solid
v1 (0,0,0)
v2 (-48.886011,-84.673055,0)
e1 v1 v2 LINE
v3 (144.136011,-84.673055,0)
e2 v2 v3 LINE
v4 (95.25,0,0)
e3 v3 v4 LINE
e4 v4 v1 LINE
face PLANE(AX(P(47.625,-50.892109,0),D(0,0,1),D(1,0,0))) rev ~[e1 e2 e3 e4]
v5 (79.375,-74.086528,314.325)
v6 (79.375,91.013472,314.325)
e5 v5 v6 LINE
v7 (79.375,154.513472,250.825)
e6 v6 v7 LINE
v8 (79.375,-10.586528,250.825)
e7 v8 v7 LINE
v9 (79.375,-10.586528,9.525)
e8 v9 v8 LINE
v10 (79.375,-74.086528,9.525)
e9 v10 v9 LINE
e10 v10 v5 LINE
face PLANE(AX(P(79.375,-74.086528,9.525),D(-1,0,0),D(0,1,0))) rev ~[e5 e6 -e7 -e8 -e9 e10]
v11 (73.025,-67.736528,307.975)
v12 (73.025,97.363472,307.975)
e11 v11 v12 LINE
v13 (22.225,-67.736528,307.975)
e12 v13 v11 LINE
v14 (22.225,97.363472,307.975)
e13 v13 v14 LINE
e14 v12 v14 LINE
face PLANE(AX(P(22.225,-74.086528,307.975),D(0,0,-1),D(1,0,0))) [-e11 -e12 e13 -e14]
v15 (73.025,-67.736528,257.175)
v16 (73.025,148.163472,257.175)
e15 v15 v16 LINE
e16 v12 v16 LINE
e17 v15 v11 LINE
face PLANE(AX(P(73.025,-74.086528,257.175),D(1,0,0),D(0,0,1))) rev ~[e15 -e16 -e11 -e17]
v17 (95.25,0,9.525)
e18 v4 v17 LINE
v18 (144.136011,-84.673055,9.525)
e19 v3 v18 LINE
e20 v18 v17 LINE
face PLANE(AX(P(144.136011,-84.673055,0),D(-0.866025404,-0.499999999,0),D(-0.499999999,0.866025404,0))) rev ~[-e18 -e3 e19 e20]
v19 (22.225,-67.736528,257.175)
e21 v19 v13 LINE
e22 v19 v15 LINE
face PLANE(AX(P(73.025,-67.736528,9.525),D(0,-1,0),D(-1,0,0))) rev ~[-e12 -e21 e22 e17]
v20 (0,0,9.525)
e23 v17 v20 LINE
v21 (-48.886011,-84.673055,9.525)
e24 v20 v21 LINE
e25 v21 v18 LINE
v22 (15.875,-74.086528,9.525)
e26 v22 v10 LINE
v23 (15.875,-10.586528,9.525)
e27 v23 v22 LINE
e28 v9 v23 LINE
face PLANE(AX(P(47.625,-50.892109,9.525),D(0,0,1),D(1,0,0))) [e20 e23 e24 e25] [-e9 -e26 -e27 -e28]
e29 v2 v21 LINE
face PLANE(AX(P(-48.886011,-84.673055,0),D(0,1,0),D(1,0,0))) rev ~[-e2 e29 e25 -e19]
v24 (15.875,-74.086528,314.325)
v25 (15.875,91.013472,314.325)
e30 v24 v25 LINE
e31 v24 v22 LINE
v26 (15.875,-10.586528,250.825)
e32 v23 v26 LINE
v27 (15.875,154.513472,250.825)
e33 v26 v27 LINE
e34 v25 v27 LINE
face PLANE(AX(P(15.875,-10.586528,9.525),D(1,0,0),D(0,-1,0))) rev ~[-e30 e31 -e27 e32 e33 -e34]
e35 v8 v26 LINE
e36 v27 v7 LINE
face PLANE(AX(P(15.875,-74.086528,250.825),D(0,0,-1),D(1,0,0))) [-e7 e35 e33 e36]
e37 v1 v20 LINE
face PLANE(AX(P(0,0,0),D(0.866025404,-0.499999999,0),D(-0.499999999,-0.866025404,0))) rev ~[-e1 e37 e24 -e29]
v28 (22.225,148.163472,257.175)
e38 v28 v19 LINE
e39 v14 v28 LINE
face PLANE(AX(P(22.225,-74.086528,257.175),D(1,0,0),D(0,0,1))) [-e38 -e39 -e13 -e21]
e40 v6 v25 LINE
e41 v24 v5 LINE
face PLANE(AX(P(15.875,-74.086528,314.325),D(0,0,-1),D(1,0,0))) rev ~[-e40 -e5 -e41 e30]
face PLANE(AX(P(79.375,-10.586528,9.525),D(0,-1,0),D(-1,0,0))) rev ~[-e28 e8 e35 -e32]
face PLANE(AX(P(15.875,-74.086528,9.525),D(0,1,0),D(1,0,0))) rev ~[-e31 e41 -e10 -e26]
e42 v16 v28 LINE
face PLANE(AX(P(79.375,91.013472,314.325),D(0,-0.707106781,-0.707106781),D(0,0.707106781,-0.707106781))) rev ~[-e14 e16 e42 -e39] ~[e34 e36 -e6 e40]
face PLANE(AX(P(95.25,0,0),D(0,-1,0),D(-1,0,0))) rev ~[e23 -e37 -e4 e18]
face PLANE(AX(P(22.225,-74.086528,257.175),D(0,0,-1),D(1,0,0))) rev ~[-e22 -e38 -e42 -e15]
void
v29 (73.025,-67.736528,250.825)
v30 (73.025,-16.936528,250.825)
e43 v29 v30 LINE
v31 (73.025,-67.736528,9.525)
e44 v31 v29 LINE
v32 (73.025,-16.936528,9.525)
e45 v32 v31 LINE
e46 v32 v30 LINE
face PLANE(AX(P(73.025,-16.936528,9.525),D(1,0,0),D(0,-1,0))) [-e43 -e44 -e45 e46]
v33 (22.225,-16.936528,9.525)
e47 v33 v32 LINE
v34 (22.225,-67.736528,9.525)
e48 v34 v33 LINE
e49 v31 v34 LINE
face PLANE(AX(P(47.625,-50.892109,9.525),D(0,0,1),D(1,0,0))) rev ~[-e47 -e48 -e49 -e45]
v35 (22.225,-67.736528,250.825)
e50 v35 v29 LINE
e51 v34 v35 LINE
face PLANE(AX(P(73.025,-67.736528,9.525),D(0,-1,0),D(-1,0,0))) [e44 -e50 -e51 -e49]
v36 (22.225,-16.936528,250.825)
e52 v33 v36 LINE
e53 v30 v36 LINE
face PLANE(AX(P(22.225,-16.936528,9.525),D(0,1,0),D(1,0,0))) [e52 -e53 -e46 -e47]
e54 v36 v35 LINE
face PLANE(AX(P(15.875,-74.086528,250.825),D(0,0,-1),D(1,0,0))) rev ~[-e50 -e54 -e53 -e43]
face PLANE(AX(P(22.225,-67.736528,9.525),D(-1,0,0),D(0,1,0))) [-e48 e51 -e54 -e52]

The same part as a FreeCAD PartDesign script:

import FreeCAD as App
import Part
import Sketcher
Q = App.Units.Quantity

doc = App.newDocument("Part")
body = doc.addObject("PartDesign::Body", "Body")

sketch1 = body.newObject("Sketcher::SketchObject", "Sketch")
sketch1.AttachmentSupport = (doc.getObject("XY_Plane"), [""])
sketch1.MapMode = "FlatFace"
sketch1.addGeometry(Part.LineSegment(App.Vector(-48.886011, -84.673055, 0), App.Vector(144.136011, -84.673055, 0)), False)
sketch1.addGeometry(Part.LineSegment(App.Vector(144.136011, -84.673055, 0), App.Vector(95.25, 0, 0)), False)
sketch1.addGeometry(Part.LineSegment(App.Vector(95.25, 0, 0), App.Vector(0, 0, 0)), False)
sketch1.addGeometry(Part.LineSegment(App.Vector(0, 0, 0), App.Vector(-48.886011, -84.673055, 0)), False)
sketch1.addConstraint(Sketcher.Constraint("Coincident", 0, 2, 1, 1))
sketch1.addConstraint(Sketcher.Constraint("Coincident", 1, 2, 2, 1))
sketch1.addConstraint(Sketcher.Constraint("Coincident", 2, 2, 3, 1))
sketch1.addConstraint(Sketcher.Constraint("Coincident", 3, 2, 0, 1))
sketch1.addConstraint(Sketcher.Constraint("Horizontal", 0))
sketch1.addConstraint(Sketcher.Constraint("Horizontal", 2))
sketch1.addConstraint(Sketcher.Constraint("Coincident", 2, 2, -1, 1))
sketch1.addConstraint(Sketcher.Constraint("Equal", 1, 3))
sketch1.addConstraint(Sketcher.Constraint("Angle", 1, Q("120 deg")))
sketch1.addConstraint(Sketcher.Constraint("DistanceX", 2, 2, 2, 1, Q("3.75 in")))
sketch1.addConstraint(Sketcher.Constraint("DistanceX", 0, 1, 0, 2, Q("193.022022 mm")))
pad1 = body.newObject("PartDesign::Pad", "Pad")
pad1.Profile = sketch1
pad1.Length = Q("0.375 in")

sketch2 = body.newObject("Sketcher::SketchObject", "Sketch001")
sketch2.AttachmentSupport = (doc.getObject("XY_Plane"), [""])
sketch2.MapMode = "FlatFace"
sketch2.AttachmentOffset = App.Placement(App.Vector(0, 0, 0.375 * 25.4), App.Rotation())
sketch2.addGeometry(Part.LineSegment(App.Vector(79.375, -10.586528, 0), App.Vector(15.875, -10.586528, 0)), False)
sketch2.addGeometry(Part.LineSegment(App.Vector(15.875, -10.586528, 0), App.Vector(15.875, -74.086528, 0)), False)
sketch2.addGeometry(Part.LineSegment(App.Vector(15.875, -74.086528, 0), App.Vector(79.375, -74.086528, 0)), False)
sketch2.addGeometry(Part.LineSegment(App.Vector(79.375, -74.086528, 0), App.Vector(79.375, -10.586528, 0)), False)
sketch2.addGeometry(Part.LineSegment(App.Vector(73.025, -16.936528, 0), App.Vector(73.025, -67.736528, 0)), False)
sketch2.addGeometry(Part.LineSegment(App.Vector(73.025, -67.736528, 0), App.Vector(22.225, -67.736528, 0)), False)
sketch2.addGeometry(Part.LineSegment(App.Vector(22.225, -67.736528, 0), App.Vector(22.225, -16.936528, 0)), False)
sketch2.addGeometry(Part.LineSegment(App.Vector(22.225, -16.936528, 0), App.Vector(73.025, -16.936528, 0)), False)
sketch2.addConstraint(Sketcher.Constraint("Coincident", 0, 2, 1, 1))
sketch2.addConstraint(Sketcher.Constraint("Coincident", 1, 2, 2, 1))
sketch2.addConstraint(Sketcher.Constraint("Coincident", 2, 2, 3, 1))
sketch2.addConstraint(Sketcher.Constraint("Coincident", 3, 2, 0, 1))
sketch2.addConstraint(Sketcher.Constraint("Coincident", 4, 2, 5, 1))
sketch2.addConstraint(Sketcher.Constraint("Coincident", 5, 2, 6, 1))
sketch2.addConstraint(Sketcher.Constraint("Coincident", 6, 2, 7, 1))
sketch2.addConstraint(Sketcher.Constraint("Coincident", 7, 2, 4, 1))
sketch2.addConstraint(Sketcher.Constraint("Horizontal", 0))
sketch2.addConstraint(Sketcher.Constraint("Vertical", 1))
sketch2.addConstraint(Sketcher.Constraint("Horizontal", 2))
sketch2.addConstraint(Sketcher.Constraint("Vertical", 3))
sketch2.addConstraint(Sketcher.Constraint("Vertical", 4))
sketch2.addConstraint(Sketcher.Constraint("Horizontal", 5))
sketch2.addConstraint(Sketcher.Constraint("Vertical", 6))
sketch2.addConstraint(Sketcher.Constraint("Horizontal", 7))
sketch2.addConstraint(Sketcher.Constraint("Equal", 2, 1))
sketch2.addConstraint(Sketcher.Constraint("Equal", 7, 4))
sketch2.addConstraint(Sketcher.Constraint("DistanceX", 5, 2, 5, 1, Q("2 in")))
sketch2.addConstraint(Sketcher.Constraint("DistanceX", 0, 2, 0, 1, Q("2.5 in")))
sketch2.addConstraint(Sketcher.Constraint("DistanceX", 4, 2, 2, 2, Q("0.25 in")))
sketch2.addConstraint(Sketcher.Constraint("DistanceY", 2, 2, 4, 2, Q("0.25 in")))
sketch2.addConstraint(Sketcher.Constraint("DistanceX", -1, 1, 0, 2, Q("0.625 in")))
sketch2.addConstraint(Sketcher.Constraint("DistanceY", 1, 2, -1, 1, Q("74.086528 mm")))
pad2 = body.newObject("PartDesign::Pad", "Pad001")
pad2.Profile = sketch2
pad2.Length = Q("12 in")

sketch3 = body.newObject("Sketcher::SketchObject", "Sketch002")
sketch3.AttachmentSupport = (doc.getObject("YZ_Plane"), [""])
sketch3.MapMode = "FlatFace"
sketch3.AttachmentOffset = App.Placement(App.Vector(0, 0, 3.125 * 25.4), App.Rotation())
sketch3.addGeometry(Part.LineSegment(App.Vector(-10.586528, 314.325, 0), App.Vector(-74.086528, 314.325, 0)), False)
sketch3.addGeometry(Part.LineSegment(App.Vector(-74.086528, 314.325, 0), App.Vector(-10.586528, 250.825, 0)), False)
sketch3.addGeometry(Part.LineSegment(App.Vector(-10.586528, 250.825, 0), App.Vector(-10.586528, 314.325, 0)), False)
sketch3.addConstraint(Sketcher.Constraint("Coincident", 0, 2, 1, 1))
sketch3.addConstraint(Sketcher.Constraint("Coincident", 1, 2, 2, 1))
sketch3.addConstraint(Sketcher.Constraint("Coincident", 2, 2, 0, 1))
sketch3.addConstraint(Sketcher.Constraint("Horizontal", 0))
sketch3.addConstraint(Sketcher.Constraint("Vertical", 2))
sketch3.addConstraint(Sketcher.Constraint("Equal", 0, 2))
sketch3.addConstraint(Sketcher.Constraint("DistanceX", 0, 2, 0, 1, Q("2.5 in")))
sketch3.addConstraint(Sketcher.Constraint("DistanceY", -1, 1, 0, 2, Q("12.375 in")))
sketch3.addConstraint(Sketcher.Constraint("DistanceX", 0, 2, -1, 1, Q("74.086528 mm")))
pocket1 = body.newObject("PartDesign::Pocket", "Pocket")
pocket1.Profile = sketch3
pocket1.Length = Q("2.5 in")

sketch4 = body.newObject("Sketcher::SketchObject", "Sketch003")
sketch4.AttachmentSupport = (doc.getObject("XZ_Plane"), [""])
sketch4.MapMode = "FlatFace"
sketch4.AttachmentOffset = App.Placement(App.Vector(0, 0, 74.086528), App.Rotation())
sketch4.addGeometry(Part.LineSegment(App.Vector(15.875, 314.325, 0), App.Vector(15.875, 250.825, 0)), False)
sketch4.addGeometry(Part.LineSegment(App.Vector(15.875, 250.825, 0), App.Vector(79.375, 250.825, 0)), False)
sketch4.addGeometry(Part.LineSegment(App.Vector(79.375, 250.825, 0), App.Vector(79.375, 314.325, 0)), False)
sketch4.addGeometry(Part.LineSegment(App.Vector(79.375, 314.325, 0), App.Vector(15.875, 314.325, 0)), False)
sketch4.addGeometry(Part.LineSegment(App.Vector(73.025, 257.175, 0), App.Vector(22.225, 257.175, 0)), False)
sketch4.addGeometry(Part.LineSegment(App.Vector(22.225, 257.175, 0), App.Vector(22.225, 307.975, 0)), False)
sketch4.addGeometry(Part.LineSegment(App.Vector(22.225, 307.975, 0), App.Vector(73.025, 307.975, 0)), False)
sketch4.addGeometry(Part.LineSegment(App.Vector(73.025, 307.975, 0), App.Vector(73.025, 257.175, 0)), False)
sketch4.addConstraint(Sketcher.Constraint("Coincident", 0, 2, 1, 1))
sketch4.addConstraint(Sketcher.Constraint("Coincident", 1, 2, 2, 1))
sketch4.addConstraint(Sketcher.Constraint("Coincident", 2, 2, 3, 1))
sketch4.addConstraint(Sketcher.Constraint("Coincident", 3, 2, 0, 1))
sketch4.addConstraint(Sketcher.Constraint("Coincident", 4, 2, 5, 1))
sketch4.addConstraint(Sketcher.Constraint("Coincident", 5, 2, 6, 1))
sketch4.addConstraint(Sketcher.Constraint("Coincident", 6, 2, 7, 1))
sketch4.addConstraint(Sketcher.Constraint("Coincident", 7, 2, 4, 1))
sketch4.addConstraint(Sketcher.Constraint("Vertical", 0))
sketch4.addConstraint(Sketcher.Constraint("Horizontal", 1))
sketch4.addConstraint(Sketcher.Constraint("Vertical", 2))
sketch4.addConstraint(Sketcher.Constraint("Horizontal", 3))
sketch4.addConstraint(Sketcher.Constraint("Horizontal", 4))
sketch4.addConstraint(Sketcher.Constraint("Vertical", 5))
sketch4.addConstraint(Sketcher.Constraint("Horizontal", 6))
sketch4.addConstraint(Sketcher.Constraint("Vertical", 7))
sketch4.addConstraint(Sketcher.Constraint("Equal", 3, 0))
sketch4.addConstraint(Sketcher.Constraint("Equal", 6, 5))
sketch4.addConstraint(Sketcher.Constraint("DistanceX", 4, 2, 4, 1, Q("2 in")))
sketch4.addConstraint(Sketcher.Constraint("DistanceX", 1, 1, 1, 2, Q("2.5 in")))
sketch4.addConstraint(Sketcher.Constraint("DistanceX", 0, 2, 4, 2, Q("0.25 in")))
sketch4.addConstraint(Sketcher.Constraint("DistanceY", 0, 2, 4, 2, Q("0.25 in")))
sketch4.addConstraint(Sketcher.Constraint("DistanceX", -1, 1, 0, 2, Q("0.625 in")))
sketch4.addConstraint(Sketcher.Constraint("DistanceY", -1, 1, 0, 2, Q("9.875 in")))
pad3 = body.newObject("PartDesign::Pad", "Pad002")
pad3.Profile = sketch4
pad3.Length = Q("9 in")
pad3.Reversed = True

sketch5 = body.newObject("Sketcher::SketchObject", "Sketch004")
sketch5.AttachmentSupport = (doc.getObject("YZ_Plane"), [""])
sketch5.MapMode = "FlatFace"
sketch5.AttachmentOffset = App.Placement(App.Vector(0, 0, 3.125 * 25.4), App.Rotation())
sketch5.addGeometry(Part.LineSegment(App.Vector(91.013472, 314.325, 0), App.Vector(154.513472, 250.825, 0)), False)
sketch5.addGeometry(Part.LineSegment(App.Vector(154.513472, 250.825, 0), App.Vector(154.513472, 314.325, 0)), False)
sketch5.addGeometry(Part.LineSegment(App.Vector(154.513472, 314.325, 0), App.Vector(91.013472, 314.325, 0)), False)
sketch5.addConstraint(Sketcher.Constraint("Coincident", 0, 2, 1, 1))
sketch5.addConstraint(Sketcher.Constraint("Coincident", 1, 2, 2, 1))
sketch5.addConstraint(Sketcher.Constraint("Coincident", 2, 2, 0, 1))
sketch5.addConstraint(Sketcher.Constraint("Vertical", 1))
sketch5.addConstraint(Sketcher.Constraint("Horizontal", 2))
sketch5.addConstraint(Sketcher.Constraint("Equal", 2, 1))
sketch5.addConstraint(Sketcher.Constraint("DistanceX", 2, 2, 2, 1, Q("2.5 in")))
sketch5.addConstraint(Sketcher.Constraint("DistanceY", -1, 1, 0, 2, Q("9.875 in")))
sketch5.addConstraint(Sketcher.Constraint("DistanceX", -1, 1, 0, 2, Q("154.513472 mm")))
pocket2 = body.newObject("PartDesign::Pocket", "Pocket001")
pocket2.Profile = sketch5
pocket2.Type = "ThroughAll"

doc.recompute()
